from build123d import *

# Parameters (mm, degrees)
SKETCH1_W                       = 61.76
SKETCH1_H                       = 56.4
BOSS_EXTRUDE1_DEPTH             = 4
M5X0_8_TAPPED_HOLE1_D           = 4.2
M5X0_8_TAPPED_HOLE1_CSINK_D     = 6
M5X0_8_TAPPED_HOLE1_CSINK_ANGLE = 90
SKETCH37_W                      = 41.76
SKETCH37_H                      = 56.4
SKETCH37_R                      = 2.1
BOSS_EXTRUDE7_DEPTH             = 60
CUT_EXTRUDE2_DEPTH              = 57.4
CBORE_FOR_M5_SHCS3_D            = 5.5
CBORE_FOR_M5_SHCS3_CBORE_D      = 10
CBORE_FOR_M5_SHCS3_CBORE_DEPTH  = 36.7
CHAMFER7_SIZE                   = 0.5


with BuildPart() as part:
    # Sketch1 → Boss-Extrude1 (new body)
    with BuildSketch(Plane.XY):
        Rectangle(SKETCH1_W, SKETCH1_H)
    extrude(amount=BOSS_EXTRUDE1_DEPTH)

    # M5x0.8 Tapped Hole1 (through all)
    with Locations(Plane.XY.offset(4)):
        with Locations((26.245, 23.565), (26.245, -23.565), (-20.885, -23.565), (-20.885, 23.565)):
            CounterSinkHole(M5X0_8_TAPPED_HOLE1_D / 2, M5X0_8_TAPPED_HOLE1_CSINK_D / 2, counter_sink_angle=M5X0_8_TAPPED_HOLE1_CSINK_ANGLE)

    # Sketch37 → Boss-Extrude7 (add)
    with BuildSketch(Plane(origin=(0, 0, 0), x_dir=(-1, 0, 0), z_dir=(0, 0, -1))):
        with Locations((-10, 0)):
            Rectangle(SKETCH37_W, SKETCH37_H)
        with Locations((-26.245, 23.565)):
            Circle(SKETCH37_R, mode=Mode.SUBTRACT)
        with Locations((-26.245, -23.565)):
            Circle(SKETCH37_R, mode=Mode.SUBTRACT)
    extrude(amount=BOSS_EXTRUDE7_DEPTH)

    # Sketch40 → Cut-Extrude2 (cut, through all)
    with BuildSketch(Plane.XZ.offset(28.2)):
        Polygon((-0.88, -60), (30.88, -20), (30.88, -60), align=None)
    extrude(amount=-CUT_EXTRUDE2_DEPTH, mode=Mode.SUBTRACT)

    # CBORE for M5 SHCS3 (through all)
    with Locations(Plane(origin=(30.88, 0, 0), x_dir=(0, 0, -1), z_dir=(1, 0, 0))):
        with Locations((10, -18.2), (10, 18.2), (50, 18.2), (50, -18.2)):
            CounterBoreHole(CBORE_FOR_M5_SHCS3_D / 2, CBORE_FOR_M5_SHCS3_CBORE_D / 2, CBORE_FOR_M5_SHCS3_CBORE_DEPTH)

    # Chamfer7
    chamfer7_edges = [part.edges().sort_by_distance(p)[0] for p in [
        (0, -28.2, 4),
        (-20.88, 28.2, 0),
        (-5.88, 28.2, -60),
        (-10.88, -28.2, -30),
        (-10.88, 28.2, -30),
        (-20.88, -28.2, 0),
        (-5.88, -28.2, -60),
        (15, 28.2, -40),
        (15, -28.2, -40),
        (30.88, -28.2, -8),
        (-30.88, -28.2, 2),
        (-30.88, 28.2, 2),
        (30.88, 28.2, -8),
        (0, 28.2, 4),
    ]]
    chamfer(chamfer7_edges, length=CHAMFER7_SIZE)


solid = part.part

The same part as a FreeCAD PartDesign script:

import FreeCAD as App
import Part
import Sketcher
from FreeCAD import Vector


def edges_at(feature, points):
    """Names of the edges that pass closest to the given points."""
    edges = feature.Shape.Edges
    near = lambda p: min(range(len(edges)), key=lambda i: edges[i].distToShape(Part.Vertex(*p))[0])
    return sorted({f"Edge{near(p) + 1}" for p in points})


def add_polygon(sketch, points):
    """Adds a closed chain of lines whose ends are joined by coincident constraints."""
    first, n = sketch.GeometryCount, len(points)
    for a, b in zip(points, points[1:] + points[:1]):
        sketch.addGeometry(Part.LineSegment(App.Vector(*a, 0), App.Vector(*b, 0)), False)
    for i in range(n):
        sketch.addConstraint(Sketcher.Constraint("Coincident", first + i, 2, first + (i + 1) % n, 1))

doc = App.newDocument("Part")
body = doc.addObject("PartDesign::Body", "Body")

sketch1 = doc.addObject("Sketcher::SketchObject", "Sketch")
body.addObject(sketch1)
sketch1.AttachmentSupport = (doc.XY_Plane, [""])
sketch1.MapMode = "FlatFace"
add_polygon(sketch1, [(-31, 28), (-31, -28), (31, -28), (31, 28)])
sketch1.addConstraint([
    Sketcher.Constraint("Vertical", 0),
    Sketcher.Constraint("Horizontal", 1),
    Sketcher.Constraint("Vertical", 2),
    Sketcher.Constraint("Horizontal", 3),
    Sketcher.Constraint("Symmetric", 0, 2, 2, 2, -1, 1),
    Sketcher.Constraint("DistanceY", 0, 2, 0, 1, 56.4),
    Sketcher.Constraint("DistanceX", 1, 1, 1, 2, 61.76),
])
pad1 = doc.addObject("PartDesign::Pad", "Pad")
body.addObject(pad1)
pad1.Profile = sketch1
pad1.Length = 4

sketch2 = doc.addObject("Sketcher::SketchObject", "Sketch001")
body.addObject(sketch2)
sketch2.AttachmentSupport = (doc.XY_Plane, [""])
sketch2.MapMode = "FlatFace"
sketch2.AttachmentOffset = App.Placement(Vector(0, 0, 4), App.Rotation())
sketch2.addGeometry([
    Part.Circle(Vector(26.2, 23.6, 0), Vector(0, 0, 1), 2.1),
    Part.Circle(Vector(26.2, -23.6, 0), Vector(0, 0, 1), 2.1),
    Part.Circle(Vector(-20.9, -23.6, 0), Vector(0, 0, 1), 2.1),
    Part.Circle(Vector(-20.9, 23.6, 0), Vector(0, 0, 1), 2.1),
], False)
sketch2.addConstraint([
    Sketcher.Constraint("Equal", 0, 1),
    Sketcher.Constraint("Equal", 1, 2),
    Sketcher.Constraint("Equal", 2, 3),
    Sketcher.Constraint("Symmetric", 0, 3, 1, 3, -1),
    Sketcher.Constraint("Symmetric", 2, 3, 3, 3, -1),
    Sketcher.Constraint("Horizontal", 1, 3, 2, 3),
    Sketcher.Constraint("Diameter", 0, 4.2),
    Sketcher.Constraint("DistanceY", 1, 3, 0, 3, 47.13),
    Sketcher.Constraint("DistanceX", 2, 3, 1, 3, 47.13),
    Sketcher.Constraint("DistanceX", -1, 1, 0, 3, 26.245),
])
doc.recompute()
hole = doc.addObject("PartDesign::Hole", "Hole")
body.addObject(hole)
hole.Profile = sketch2
hole.ThreadType = "None"
hole.Diameter = 4.2
hole.DepthType = "ThroughAll"
hole.HoleCutType = "Countersink"
hole.HoleCutDiameter = 6
hole.HoleCutCountersinkAngle = 90

sketch3 = doc.addObject("Sketcher::SketchObject", "Sketch002")
body.addObject(sketch3)
sketch3.AttachmentSupport = (doc.XY_Plane, [""])
sketch3.MapMode = "FlatFace"
add_polygon(sketch3, [(30.9, 28.2), (30.9, -28.2), (-10.9, -28.2), (-10.9, 28.2)])
sketch3.addGeometry(Part.Circle(Vector(26.2, -23.6, 0), Vector(0, 0, 1), 2.1), False)
sketch3.addGeometry(Part.Circle(Vector(26.2, 23.6, 0), Vector(0, 0, 1), 2.1), False)
sketch3.addConstraint([
    Sketcher.Constraint("Vertical", 0),
    Sketcher.Constraint("Horizontal", 1),
    Sketcher.Constraint("Vertical", 2),
    Sketcher.Constraint("Horizontal", 3),
    Sketcher.Constraint("Equal", 4, 5),
    Sketcher.Constraint("Symmetric", 4, 3, 5, 3, -1),
    Sketcher.Constraint("Diameter", 4, 4.2),
    Sketcher.Constraint("DistanceY", 0, 2, 0, 1, 56.4),
    Sketcher.Constraint("DistanceX", 1, 2, 1, 1, 41.76),
    Sketcher.Constraint("DistanceY", 0, 2, -1, 1, 28.2),
    Sketcher.Constraint("DistanceX", -1, 1, 0, 2, 30.88),
    Sketcher.Constraint("DistanceY", 4, 3, 5, 3, 47.13),
    Sketcher.Constraint("DistanceX", -1, 1, 4, 3, 26.245),
])
pad2 = doc.addObject("PartDesign::Pad", "Pad001")
body.addObject(pad2)
pad2.Profile = sketch3
pad2.Length = 60
pad2.Reversed = True

sketch4 = doc.addObject("Sketcher::SketchObject", "Sketch003")
body.addObject(sketch4)
sketch4.AttachmentSupport = (doc.XZ_Plane, [""])
sketch4.MapMode = "FlatFace"
sketch4.AttachmentOffset = App.Placement(Vector(0, 0, 28.2), App.Rotation())
add_polygon(sketch4, [(31, -20), (-1, -60), (31, -60)])
sketch4.addConstraint([
    Sketcher.Constraint("Horizontal", 1),
    Sketcher.Constraint("Vertical", 2),
    Sketcher.Constraint("DistanceY", 2, 1, 2, 2, 40.0),
    Sketcher.Constraint("DistanceY", 0, 2, -1, 1, 60.0),
    Sketcher.Constraint("DistanceX", 1, 1, 1, 2, 31.76),
    Sketcher.Constraint("DistanceX", 0, 2, -1, 1, 0.88),
])
pocket1 = doc.addObject("PartDesign::Pocket", "Pocket")
body.addObject(pocket1)
pocket1.Profile = sketch4
pocket1.Type = "ThroughAll"

sketch5 = doc.addObject("Sketcher::SketchObject", "Sketch004")
body.addObject(sketch5)
sketch5.AttachmentSupport = (doc.YZ_Plane, [""])
sketch5.MapMode = "FlatFace"
sketch5.AttachmentOffset = App.Placement(Vector(0, 0, 30.88), App.Rotation())
sketch5.addGeometry([
    Part.Circle(Vector(-18.2, -10, 0), Vector(0, 0, 1), 2.8),
    Part.Circle(Vector(18.2, -10, 0), Vector(0, 0, 1), 2.8),
    Part.Circle(Vector(18.2, -50, 0), Vector(0, 0, 1), 2.8),
    Part.Circle(Vector(-18.2, -50, 0), Vector(0, 0, 1), 2.8),
], False)
sketch5.addConstraint([
    Sketcher.Constraint("Equal", 0, 1),
    Sketcher.Constraint("Equal", 1, 2),
    Sketcher.Constraint("Equal", 2, 3),
    Sketcher.Constraint("Symmetric", 0, 3, 1, 3, -2),
    Sketcher.Constraint("Symmetric", 2, 3, 3, 3, -2),
    Sketcher.Constraint("Vertical", 1, 3, 2, 3),
    Sketcher.Constraint("Diameter", 0, 5.5),
    Sketcher.Constraint("DistanceY", 0, 3, -1, 1, 10.0),
    Sketcher.Constraint("DistanceY", 2, 3, -1, 1, 50.0),
    Sketcher.Constraint("DistanceX", 0, 3, -1, 1, 18.2),
])
doc.recompute()
hole2 = doc.addObject("PartDesign::Hole", "Hole001")
body.addObject(hole2)
hole2.Profile = sketch5
hole2.ThreadType = "None"
hole2.Diameter = 5.5
hole2.DepthType = "ThroughAll"
hole2.HoleCutType = "Counterbore"
hole2.HoleCutDiameter = 10
hole2.HoleCutDepth = 36.7
doc.recompute()

chamfer = doc.addObject("PartDesign::Chamfer", "Chamfer")
body.addObject(chamfer)
chamfer.Base = (hole2, edges_at(hole2, [
    (0, -28.2, 4),
    (-20.88, 28.2, 0),
    (-5.88, 28.2, -60),
    (-10.88, -28.2, -30),
    (-10.88, 28.2, -30),
    (-20.88, -28.2, 0),
    (-5.88, -28.2, -60),
    (15, 28.2, -40),
    (15, -28.2, -40),
    (30.88, -28.2, -8),
    (-30.88, -28.2, 2),
    (-30.88, 28.2, 2),
    (30.88, 28.2, -8),
    (0, 28.2, 4),
]))
chamfer.Size = 0.5

doc.recompute()
